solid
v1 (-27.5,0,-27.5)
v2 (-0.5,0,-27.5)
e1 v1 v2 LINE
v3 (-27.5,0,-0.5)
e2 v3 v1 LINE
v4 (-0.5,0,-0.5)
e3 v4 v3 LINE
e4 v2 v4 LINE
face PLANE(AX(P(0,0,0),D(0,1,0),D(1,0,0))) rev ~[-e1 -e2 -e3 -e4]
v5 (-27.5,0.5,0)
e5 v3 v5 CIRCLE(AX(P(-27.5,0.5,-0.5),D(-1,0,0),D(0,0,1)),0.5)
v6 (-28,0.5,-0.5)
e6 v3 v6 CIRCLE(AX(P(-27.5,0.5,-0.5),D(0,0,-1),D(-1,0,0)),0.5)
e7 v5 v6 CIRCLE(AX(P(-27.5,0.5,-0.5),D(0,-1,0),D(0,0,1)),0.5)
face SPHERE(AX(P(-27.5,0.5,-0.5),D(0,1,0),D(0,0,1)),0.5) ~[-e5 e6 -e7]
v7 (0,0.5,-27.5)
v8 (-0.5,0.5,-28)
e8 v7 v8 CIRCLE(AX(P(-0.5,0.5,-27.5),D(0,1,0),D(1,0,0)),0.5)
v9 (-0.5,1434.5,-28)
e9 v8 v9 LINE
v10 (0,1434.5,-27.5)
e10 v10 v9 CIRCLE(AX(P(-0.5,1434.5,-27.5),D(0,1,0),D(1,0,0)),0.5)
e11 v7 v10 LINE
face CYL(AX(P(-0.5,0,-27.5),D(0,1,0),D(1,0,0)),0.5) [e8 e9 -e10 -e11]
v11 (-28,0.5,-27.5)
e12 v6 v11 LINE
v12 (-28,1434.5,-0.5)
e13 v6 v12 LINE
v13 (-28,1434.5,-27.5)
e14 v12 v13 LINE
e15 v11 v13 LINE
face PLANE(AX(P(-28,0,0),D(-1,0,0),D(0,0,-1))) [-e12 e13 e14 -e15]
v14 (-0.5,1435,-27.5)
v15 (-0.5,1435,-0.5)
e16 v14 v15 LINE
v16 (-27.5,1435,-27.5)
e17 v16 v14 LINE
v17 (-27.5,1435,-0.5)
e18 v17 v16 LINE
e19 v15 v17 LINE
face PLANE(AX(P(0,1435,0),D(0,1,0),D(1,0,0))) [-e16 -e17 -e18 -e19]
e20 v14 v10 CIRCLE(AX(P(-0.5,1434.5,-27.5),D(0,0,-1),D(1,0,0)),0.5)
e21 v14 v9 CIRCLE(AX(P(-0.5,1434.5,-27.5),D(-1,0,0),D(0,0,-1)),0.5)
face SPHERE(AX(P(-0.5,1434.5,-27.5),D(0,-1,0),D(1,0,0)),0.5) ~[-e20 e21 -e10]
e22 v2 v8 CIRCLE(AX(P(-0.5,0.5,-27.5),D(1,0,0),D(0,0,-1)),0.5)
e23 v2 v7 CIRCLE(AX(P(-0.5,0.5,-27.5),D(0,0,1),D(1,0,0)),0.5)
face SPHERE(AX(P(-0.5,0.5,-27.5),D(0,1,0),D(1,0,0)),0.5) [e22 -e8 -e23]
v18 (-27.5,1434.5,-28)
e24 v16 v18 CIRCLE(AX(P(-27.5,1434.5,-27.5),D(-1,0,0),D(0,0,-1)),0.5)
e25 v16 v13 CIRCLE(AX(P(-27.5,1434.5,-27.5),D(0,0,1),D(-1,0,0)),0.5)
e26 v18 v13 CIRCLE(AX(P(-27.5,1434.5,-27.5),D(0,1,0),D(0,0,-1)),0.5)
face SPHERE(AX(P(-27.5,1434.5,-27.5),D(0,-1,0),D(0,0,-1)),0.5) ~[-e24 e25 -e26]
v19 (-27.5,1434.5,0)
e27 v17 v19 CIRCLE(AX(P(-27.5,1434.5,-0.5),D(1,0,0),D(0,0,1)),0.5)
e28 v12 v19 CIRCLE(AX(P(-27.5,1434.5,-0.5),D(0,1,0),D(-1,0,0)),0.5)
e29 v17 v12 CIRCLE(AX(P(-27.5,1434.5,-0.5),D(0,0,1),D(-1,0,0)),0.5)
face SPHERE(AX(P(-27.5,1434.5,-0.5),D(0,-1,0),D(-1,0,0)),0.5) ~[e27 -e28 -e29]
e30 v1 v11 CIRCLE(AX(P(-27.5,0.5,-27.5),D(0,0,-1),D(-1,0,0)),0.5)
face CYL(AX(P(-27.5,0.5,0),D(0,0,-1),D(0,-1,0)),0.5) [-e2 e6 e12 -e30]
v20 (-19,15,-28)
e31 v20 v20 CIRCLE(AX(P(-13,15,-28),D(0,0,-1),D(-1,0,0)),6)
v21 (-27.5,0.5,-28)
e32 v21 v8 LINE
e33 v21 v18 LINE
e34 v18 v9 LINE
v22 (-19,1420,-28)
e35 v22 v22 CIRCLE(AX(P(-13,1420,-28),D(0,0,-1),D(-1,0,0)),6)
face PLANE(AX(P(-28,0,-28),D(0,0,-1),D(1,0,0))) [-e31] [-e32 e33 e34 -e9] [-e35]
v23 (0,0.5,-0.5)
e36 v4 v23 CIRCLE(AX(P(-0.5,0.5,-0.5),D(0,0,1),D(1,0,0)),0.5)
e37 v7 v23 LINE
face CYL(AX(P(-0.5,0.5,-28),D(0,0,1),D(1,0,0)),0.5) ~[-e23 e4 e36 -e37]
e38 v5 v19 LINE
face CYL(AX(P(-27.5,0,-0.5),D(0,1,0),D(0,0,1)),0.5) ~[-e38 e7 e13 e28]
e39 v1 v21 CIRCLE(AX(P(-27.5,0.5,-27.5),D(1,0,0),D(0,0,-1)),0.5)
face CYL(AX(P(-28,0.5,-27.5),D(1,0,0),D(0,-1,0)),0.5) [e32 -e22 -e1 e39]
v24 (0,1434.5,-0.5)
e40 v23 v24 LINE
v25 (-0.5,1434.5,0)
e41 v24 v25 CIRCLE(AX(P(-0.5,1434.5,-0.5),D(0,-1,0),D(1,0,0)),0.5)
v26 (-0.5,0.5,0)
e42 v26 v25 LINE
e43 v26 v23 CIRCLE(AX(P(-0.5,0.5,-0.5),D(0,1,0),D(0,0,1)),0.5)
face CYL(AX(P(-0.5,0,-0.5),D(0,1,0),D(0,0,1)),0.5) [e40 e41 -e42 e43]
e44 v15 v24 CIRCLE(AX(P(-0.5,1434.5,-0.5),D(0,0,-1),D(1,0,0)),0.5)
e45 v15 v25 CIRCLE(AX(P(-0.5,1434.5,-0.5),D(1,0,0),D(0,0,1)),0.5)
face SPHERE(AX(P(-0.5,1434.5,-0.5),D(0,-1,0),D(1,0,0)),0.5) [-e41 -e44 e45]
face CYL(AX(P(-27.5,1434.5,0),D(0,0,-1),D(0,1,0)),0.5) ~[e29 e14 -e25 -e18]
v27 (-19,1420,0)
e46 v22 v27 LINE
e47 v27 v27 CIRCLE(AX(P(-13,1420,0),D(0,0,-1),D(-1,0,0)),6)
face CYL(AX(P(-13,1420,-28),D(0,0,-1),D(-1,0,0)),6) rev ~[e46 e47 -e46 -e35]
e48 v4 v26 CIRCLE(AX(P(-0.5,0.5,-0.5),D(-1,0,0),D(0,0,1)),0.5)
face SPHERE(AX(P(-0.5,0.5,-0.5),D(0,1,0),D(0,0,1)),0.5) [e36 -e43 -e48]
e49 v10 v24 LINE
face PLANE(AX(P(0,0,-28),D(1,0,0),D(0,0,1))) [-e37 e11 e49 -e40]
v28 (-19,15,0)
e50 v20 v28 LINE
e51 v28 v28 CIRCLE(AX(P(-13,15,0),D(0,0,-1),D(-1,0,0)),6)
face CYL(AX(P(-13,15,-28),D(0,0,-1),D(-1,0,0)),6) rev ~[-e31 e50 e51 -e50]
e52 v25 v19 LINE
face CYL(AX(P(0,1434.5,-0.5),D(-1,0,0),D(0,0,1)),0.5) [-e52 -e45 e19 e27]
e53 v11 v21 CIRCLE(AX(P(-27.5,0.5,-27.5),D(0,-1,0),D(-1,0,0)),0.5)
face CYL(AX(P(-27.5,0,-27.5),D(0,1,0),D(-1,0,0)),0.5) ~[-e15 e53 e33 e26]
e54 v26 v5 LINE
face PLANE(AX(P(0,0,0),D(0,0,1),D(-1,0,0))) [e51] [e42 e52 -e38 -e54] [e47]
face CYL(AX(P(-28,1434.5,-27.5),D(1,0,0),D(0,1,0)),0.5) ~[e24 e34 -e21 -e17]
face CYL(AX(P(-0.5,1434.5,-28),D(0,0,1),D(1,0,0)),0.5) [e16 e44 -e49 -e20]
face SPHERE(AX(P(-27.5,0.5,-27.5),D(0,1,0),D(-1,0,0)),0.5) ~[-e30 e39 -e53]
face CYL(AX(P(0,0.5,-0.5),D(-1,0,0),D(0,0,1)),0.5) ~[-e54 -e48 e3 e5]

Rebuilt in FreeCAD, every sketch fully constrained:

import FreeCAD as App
import Part
import Sketcher
from FreeCAD import Vector
Q = App.Units.Quantity


def edges_at(feature, points):
    """Names of the edges that pass closest to the given points."""
    edges = feature.Shape.Edges
    near = lambda p: min(range(len(edges)), key=lambda i: edges[i].distToShape(Part.Vertex(*p))[0])
    return sorted({f"Edge{near(p) + 1}" for p in points})

doc = App.newDocument("Part")
body = doc.addObject("PartDesign::Body", "Body")

# Sketch on XZ plane
sketch1 = body.newObject("Sketcher::SketchObject", "Sketch")
sketch1.AttachmentSupport = (doc.getObject("XZ_Plane"), [""])
sketch1.MapMode = "FlatFace"
sketch1.addGeometry([
    Part.LineSegment(Vector(-28, 0, 0), Vector(0, 0, 0)),
    Part.LineSegment(Vector(0, 0, 0), Vector(0, -28, 0)),
    Part.LineSegment(Vector(0, -28, 0), Vector(-28, -28, 0)),
    Part.LineSegment(Vector(-28, -28, 0), Vector(-28, 0, 0)),
], False)
sketch1.addConstraint([
    Sketcher.Constraint("Coincident", 0, 2, 1, 1),
    Sketcher.Constraint("Coincident", 1, 2, 2, 1),
    Sketcher.Constraint("Coincident", 2, 2, 3, 1),
    Sketcher.Constraint("Coincident", 3, 2, 0, 1),
    Sketcher.Constraint("Horizontal", 0),
    Sketcher.Constraint("Vertical", 1),
    Sketcher.Constraint("Horizontal", 2),
    Sketcher.Constraint("Vertical", 3),
    Sketcher.Constraint("Coincident", 0, 2, -1, 1),
    Sketcher.Constraint("Equal", 2, 1),
    Sketcher.Constraint("DistanceX", 0, 1, 0, 2, Q("28 mm")),
])
pad1 = body.newObject("PartDesign::Pad", "Pad")
pad1.Profile = sketch1
pad1.Length = 1435
pad1.Reversed = True

# Sketch on XY plane
sketch2 = body.newObject("Sketcher::SketchObject", "Sketch001")
sketch2.AttachmentSupport = (doc.getObject("XY_Plane"), [""])
sketch2.MapMode = "FlatFace"
sketch2.AttachmentOffset = App.Placement(Vector(0, 0, -28), App.Rotation())
sketch2.addGeometry([
    Part.Circle(Vector(-13, 1420, 0), Vector(0, 0, 1), 6),
    Part.Circle(Vector(-13, 15, 0), Vector(0, 0, 1), 6),
], False)
sketch2.addConstraint([
    Sketcher.Constraint("Equal", 0, 1),
    Sketcher.Constraint("Vertical", 0, 3, 1, 3),
    Sketcher.Constraint("Diameter", 0, Q("12 mm")),
    Sketcher.Constraint("DistanceY", -1, 1, 1, 3, Q("15 mm")),
    Sketcher.Constraint("DistanceX", 0, 3, -1, 1, Q("13 mm")),
    Sketcher.Constraint("DistanceY", -1, 1, 0, 3, Q("1420 mm")),
])
pocket1 = body.newObject("PartDesign::Pocket", "Pocket")
pocket1.Profile = sketch2
pocket1.Type = "ThroughAll"
pocket1.Reversed = True
doc.recompute()

fillet = body.newObject("PartDesign::Fillet", "Fillet")
fillet.Base = (pocket1, edges_at(pocket1, [
    (-28, 717.5, 0),
    (0, 717.5, 0),
    (-28, 717.5, -28),
    (0, 717.5, -28),
    (0, 1435, -14),
    (-14, 1435, -28),
    (-28, 1435, -14),
    (-14, 1435, 0),
    (-14, 0, 0),
    (-28, 0, -14),
    (0, 0, -14),
    (-14, 0, -28),
]))
fillet.Radius = 0.5

doc.recompute()
